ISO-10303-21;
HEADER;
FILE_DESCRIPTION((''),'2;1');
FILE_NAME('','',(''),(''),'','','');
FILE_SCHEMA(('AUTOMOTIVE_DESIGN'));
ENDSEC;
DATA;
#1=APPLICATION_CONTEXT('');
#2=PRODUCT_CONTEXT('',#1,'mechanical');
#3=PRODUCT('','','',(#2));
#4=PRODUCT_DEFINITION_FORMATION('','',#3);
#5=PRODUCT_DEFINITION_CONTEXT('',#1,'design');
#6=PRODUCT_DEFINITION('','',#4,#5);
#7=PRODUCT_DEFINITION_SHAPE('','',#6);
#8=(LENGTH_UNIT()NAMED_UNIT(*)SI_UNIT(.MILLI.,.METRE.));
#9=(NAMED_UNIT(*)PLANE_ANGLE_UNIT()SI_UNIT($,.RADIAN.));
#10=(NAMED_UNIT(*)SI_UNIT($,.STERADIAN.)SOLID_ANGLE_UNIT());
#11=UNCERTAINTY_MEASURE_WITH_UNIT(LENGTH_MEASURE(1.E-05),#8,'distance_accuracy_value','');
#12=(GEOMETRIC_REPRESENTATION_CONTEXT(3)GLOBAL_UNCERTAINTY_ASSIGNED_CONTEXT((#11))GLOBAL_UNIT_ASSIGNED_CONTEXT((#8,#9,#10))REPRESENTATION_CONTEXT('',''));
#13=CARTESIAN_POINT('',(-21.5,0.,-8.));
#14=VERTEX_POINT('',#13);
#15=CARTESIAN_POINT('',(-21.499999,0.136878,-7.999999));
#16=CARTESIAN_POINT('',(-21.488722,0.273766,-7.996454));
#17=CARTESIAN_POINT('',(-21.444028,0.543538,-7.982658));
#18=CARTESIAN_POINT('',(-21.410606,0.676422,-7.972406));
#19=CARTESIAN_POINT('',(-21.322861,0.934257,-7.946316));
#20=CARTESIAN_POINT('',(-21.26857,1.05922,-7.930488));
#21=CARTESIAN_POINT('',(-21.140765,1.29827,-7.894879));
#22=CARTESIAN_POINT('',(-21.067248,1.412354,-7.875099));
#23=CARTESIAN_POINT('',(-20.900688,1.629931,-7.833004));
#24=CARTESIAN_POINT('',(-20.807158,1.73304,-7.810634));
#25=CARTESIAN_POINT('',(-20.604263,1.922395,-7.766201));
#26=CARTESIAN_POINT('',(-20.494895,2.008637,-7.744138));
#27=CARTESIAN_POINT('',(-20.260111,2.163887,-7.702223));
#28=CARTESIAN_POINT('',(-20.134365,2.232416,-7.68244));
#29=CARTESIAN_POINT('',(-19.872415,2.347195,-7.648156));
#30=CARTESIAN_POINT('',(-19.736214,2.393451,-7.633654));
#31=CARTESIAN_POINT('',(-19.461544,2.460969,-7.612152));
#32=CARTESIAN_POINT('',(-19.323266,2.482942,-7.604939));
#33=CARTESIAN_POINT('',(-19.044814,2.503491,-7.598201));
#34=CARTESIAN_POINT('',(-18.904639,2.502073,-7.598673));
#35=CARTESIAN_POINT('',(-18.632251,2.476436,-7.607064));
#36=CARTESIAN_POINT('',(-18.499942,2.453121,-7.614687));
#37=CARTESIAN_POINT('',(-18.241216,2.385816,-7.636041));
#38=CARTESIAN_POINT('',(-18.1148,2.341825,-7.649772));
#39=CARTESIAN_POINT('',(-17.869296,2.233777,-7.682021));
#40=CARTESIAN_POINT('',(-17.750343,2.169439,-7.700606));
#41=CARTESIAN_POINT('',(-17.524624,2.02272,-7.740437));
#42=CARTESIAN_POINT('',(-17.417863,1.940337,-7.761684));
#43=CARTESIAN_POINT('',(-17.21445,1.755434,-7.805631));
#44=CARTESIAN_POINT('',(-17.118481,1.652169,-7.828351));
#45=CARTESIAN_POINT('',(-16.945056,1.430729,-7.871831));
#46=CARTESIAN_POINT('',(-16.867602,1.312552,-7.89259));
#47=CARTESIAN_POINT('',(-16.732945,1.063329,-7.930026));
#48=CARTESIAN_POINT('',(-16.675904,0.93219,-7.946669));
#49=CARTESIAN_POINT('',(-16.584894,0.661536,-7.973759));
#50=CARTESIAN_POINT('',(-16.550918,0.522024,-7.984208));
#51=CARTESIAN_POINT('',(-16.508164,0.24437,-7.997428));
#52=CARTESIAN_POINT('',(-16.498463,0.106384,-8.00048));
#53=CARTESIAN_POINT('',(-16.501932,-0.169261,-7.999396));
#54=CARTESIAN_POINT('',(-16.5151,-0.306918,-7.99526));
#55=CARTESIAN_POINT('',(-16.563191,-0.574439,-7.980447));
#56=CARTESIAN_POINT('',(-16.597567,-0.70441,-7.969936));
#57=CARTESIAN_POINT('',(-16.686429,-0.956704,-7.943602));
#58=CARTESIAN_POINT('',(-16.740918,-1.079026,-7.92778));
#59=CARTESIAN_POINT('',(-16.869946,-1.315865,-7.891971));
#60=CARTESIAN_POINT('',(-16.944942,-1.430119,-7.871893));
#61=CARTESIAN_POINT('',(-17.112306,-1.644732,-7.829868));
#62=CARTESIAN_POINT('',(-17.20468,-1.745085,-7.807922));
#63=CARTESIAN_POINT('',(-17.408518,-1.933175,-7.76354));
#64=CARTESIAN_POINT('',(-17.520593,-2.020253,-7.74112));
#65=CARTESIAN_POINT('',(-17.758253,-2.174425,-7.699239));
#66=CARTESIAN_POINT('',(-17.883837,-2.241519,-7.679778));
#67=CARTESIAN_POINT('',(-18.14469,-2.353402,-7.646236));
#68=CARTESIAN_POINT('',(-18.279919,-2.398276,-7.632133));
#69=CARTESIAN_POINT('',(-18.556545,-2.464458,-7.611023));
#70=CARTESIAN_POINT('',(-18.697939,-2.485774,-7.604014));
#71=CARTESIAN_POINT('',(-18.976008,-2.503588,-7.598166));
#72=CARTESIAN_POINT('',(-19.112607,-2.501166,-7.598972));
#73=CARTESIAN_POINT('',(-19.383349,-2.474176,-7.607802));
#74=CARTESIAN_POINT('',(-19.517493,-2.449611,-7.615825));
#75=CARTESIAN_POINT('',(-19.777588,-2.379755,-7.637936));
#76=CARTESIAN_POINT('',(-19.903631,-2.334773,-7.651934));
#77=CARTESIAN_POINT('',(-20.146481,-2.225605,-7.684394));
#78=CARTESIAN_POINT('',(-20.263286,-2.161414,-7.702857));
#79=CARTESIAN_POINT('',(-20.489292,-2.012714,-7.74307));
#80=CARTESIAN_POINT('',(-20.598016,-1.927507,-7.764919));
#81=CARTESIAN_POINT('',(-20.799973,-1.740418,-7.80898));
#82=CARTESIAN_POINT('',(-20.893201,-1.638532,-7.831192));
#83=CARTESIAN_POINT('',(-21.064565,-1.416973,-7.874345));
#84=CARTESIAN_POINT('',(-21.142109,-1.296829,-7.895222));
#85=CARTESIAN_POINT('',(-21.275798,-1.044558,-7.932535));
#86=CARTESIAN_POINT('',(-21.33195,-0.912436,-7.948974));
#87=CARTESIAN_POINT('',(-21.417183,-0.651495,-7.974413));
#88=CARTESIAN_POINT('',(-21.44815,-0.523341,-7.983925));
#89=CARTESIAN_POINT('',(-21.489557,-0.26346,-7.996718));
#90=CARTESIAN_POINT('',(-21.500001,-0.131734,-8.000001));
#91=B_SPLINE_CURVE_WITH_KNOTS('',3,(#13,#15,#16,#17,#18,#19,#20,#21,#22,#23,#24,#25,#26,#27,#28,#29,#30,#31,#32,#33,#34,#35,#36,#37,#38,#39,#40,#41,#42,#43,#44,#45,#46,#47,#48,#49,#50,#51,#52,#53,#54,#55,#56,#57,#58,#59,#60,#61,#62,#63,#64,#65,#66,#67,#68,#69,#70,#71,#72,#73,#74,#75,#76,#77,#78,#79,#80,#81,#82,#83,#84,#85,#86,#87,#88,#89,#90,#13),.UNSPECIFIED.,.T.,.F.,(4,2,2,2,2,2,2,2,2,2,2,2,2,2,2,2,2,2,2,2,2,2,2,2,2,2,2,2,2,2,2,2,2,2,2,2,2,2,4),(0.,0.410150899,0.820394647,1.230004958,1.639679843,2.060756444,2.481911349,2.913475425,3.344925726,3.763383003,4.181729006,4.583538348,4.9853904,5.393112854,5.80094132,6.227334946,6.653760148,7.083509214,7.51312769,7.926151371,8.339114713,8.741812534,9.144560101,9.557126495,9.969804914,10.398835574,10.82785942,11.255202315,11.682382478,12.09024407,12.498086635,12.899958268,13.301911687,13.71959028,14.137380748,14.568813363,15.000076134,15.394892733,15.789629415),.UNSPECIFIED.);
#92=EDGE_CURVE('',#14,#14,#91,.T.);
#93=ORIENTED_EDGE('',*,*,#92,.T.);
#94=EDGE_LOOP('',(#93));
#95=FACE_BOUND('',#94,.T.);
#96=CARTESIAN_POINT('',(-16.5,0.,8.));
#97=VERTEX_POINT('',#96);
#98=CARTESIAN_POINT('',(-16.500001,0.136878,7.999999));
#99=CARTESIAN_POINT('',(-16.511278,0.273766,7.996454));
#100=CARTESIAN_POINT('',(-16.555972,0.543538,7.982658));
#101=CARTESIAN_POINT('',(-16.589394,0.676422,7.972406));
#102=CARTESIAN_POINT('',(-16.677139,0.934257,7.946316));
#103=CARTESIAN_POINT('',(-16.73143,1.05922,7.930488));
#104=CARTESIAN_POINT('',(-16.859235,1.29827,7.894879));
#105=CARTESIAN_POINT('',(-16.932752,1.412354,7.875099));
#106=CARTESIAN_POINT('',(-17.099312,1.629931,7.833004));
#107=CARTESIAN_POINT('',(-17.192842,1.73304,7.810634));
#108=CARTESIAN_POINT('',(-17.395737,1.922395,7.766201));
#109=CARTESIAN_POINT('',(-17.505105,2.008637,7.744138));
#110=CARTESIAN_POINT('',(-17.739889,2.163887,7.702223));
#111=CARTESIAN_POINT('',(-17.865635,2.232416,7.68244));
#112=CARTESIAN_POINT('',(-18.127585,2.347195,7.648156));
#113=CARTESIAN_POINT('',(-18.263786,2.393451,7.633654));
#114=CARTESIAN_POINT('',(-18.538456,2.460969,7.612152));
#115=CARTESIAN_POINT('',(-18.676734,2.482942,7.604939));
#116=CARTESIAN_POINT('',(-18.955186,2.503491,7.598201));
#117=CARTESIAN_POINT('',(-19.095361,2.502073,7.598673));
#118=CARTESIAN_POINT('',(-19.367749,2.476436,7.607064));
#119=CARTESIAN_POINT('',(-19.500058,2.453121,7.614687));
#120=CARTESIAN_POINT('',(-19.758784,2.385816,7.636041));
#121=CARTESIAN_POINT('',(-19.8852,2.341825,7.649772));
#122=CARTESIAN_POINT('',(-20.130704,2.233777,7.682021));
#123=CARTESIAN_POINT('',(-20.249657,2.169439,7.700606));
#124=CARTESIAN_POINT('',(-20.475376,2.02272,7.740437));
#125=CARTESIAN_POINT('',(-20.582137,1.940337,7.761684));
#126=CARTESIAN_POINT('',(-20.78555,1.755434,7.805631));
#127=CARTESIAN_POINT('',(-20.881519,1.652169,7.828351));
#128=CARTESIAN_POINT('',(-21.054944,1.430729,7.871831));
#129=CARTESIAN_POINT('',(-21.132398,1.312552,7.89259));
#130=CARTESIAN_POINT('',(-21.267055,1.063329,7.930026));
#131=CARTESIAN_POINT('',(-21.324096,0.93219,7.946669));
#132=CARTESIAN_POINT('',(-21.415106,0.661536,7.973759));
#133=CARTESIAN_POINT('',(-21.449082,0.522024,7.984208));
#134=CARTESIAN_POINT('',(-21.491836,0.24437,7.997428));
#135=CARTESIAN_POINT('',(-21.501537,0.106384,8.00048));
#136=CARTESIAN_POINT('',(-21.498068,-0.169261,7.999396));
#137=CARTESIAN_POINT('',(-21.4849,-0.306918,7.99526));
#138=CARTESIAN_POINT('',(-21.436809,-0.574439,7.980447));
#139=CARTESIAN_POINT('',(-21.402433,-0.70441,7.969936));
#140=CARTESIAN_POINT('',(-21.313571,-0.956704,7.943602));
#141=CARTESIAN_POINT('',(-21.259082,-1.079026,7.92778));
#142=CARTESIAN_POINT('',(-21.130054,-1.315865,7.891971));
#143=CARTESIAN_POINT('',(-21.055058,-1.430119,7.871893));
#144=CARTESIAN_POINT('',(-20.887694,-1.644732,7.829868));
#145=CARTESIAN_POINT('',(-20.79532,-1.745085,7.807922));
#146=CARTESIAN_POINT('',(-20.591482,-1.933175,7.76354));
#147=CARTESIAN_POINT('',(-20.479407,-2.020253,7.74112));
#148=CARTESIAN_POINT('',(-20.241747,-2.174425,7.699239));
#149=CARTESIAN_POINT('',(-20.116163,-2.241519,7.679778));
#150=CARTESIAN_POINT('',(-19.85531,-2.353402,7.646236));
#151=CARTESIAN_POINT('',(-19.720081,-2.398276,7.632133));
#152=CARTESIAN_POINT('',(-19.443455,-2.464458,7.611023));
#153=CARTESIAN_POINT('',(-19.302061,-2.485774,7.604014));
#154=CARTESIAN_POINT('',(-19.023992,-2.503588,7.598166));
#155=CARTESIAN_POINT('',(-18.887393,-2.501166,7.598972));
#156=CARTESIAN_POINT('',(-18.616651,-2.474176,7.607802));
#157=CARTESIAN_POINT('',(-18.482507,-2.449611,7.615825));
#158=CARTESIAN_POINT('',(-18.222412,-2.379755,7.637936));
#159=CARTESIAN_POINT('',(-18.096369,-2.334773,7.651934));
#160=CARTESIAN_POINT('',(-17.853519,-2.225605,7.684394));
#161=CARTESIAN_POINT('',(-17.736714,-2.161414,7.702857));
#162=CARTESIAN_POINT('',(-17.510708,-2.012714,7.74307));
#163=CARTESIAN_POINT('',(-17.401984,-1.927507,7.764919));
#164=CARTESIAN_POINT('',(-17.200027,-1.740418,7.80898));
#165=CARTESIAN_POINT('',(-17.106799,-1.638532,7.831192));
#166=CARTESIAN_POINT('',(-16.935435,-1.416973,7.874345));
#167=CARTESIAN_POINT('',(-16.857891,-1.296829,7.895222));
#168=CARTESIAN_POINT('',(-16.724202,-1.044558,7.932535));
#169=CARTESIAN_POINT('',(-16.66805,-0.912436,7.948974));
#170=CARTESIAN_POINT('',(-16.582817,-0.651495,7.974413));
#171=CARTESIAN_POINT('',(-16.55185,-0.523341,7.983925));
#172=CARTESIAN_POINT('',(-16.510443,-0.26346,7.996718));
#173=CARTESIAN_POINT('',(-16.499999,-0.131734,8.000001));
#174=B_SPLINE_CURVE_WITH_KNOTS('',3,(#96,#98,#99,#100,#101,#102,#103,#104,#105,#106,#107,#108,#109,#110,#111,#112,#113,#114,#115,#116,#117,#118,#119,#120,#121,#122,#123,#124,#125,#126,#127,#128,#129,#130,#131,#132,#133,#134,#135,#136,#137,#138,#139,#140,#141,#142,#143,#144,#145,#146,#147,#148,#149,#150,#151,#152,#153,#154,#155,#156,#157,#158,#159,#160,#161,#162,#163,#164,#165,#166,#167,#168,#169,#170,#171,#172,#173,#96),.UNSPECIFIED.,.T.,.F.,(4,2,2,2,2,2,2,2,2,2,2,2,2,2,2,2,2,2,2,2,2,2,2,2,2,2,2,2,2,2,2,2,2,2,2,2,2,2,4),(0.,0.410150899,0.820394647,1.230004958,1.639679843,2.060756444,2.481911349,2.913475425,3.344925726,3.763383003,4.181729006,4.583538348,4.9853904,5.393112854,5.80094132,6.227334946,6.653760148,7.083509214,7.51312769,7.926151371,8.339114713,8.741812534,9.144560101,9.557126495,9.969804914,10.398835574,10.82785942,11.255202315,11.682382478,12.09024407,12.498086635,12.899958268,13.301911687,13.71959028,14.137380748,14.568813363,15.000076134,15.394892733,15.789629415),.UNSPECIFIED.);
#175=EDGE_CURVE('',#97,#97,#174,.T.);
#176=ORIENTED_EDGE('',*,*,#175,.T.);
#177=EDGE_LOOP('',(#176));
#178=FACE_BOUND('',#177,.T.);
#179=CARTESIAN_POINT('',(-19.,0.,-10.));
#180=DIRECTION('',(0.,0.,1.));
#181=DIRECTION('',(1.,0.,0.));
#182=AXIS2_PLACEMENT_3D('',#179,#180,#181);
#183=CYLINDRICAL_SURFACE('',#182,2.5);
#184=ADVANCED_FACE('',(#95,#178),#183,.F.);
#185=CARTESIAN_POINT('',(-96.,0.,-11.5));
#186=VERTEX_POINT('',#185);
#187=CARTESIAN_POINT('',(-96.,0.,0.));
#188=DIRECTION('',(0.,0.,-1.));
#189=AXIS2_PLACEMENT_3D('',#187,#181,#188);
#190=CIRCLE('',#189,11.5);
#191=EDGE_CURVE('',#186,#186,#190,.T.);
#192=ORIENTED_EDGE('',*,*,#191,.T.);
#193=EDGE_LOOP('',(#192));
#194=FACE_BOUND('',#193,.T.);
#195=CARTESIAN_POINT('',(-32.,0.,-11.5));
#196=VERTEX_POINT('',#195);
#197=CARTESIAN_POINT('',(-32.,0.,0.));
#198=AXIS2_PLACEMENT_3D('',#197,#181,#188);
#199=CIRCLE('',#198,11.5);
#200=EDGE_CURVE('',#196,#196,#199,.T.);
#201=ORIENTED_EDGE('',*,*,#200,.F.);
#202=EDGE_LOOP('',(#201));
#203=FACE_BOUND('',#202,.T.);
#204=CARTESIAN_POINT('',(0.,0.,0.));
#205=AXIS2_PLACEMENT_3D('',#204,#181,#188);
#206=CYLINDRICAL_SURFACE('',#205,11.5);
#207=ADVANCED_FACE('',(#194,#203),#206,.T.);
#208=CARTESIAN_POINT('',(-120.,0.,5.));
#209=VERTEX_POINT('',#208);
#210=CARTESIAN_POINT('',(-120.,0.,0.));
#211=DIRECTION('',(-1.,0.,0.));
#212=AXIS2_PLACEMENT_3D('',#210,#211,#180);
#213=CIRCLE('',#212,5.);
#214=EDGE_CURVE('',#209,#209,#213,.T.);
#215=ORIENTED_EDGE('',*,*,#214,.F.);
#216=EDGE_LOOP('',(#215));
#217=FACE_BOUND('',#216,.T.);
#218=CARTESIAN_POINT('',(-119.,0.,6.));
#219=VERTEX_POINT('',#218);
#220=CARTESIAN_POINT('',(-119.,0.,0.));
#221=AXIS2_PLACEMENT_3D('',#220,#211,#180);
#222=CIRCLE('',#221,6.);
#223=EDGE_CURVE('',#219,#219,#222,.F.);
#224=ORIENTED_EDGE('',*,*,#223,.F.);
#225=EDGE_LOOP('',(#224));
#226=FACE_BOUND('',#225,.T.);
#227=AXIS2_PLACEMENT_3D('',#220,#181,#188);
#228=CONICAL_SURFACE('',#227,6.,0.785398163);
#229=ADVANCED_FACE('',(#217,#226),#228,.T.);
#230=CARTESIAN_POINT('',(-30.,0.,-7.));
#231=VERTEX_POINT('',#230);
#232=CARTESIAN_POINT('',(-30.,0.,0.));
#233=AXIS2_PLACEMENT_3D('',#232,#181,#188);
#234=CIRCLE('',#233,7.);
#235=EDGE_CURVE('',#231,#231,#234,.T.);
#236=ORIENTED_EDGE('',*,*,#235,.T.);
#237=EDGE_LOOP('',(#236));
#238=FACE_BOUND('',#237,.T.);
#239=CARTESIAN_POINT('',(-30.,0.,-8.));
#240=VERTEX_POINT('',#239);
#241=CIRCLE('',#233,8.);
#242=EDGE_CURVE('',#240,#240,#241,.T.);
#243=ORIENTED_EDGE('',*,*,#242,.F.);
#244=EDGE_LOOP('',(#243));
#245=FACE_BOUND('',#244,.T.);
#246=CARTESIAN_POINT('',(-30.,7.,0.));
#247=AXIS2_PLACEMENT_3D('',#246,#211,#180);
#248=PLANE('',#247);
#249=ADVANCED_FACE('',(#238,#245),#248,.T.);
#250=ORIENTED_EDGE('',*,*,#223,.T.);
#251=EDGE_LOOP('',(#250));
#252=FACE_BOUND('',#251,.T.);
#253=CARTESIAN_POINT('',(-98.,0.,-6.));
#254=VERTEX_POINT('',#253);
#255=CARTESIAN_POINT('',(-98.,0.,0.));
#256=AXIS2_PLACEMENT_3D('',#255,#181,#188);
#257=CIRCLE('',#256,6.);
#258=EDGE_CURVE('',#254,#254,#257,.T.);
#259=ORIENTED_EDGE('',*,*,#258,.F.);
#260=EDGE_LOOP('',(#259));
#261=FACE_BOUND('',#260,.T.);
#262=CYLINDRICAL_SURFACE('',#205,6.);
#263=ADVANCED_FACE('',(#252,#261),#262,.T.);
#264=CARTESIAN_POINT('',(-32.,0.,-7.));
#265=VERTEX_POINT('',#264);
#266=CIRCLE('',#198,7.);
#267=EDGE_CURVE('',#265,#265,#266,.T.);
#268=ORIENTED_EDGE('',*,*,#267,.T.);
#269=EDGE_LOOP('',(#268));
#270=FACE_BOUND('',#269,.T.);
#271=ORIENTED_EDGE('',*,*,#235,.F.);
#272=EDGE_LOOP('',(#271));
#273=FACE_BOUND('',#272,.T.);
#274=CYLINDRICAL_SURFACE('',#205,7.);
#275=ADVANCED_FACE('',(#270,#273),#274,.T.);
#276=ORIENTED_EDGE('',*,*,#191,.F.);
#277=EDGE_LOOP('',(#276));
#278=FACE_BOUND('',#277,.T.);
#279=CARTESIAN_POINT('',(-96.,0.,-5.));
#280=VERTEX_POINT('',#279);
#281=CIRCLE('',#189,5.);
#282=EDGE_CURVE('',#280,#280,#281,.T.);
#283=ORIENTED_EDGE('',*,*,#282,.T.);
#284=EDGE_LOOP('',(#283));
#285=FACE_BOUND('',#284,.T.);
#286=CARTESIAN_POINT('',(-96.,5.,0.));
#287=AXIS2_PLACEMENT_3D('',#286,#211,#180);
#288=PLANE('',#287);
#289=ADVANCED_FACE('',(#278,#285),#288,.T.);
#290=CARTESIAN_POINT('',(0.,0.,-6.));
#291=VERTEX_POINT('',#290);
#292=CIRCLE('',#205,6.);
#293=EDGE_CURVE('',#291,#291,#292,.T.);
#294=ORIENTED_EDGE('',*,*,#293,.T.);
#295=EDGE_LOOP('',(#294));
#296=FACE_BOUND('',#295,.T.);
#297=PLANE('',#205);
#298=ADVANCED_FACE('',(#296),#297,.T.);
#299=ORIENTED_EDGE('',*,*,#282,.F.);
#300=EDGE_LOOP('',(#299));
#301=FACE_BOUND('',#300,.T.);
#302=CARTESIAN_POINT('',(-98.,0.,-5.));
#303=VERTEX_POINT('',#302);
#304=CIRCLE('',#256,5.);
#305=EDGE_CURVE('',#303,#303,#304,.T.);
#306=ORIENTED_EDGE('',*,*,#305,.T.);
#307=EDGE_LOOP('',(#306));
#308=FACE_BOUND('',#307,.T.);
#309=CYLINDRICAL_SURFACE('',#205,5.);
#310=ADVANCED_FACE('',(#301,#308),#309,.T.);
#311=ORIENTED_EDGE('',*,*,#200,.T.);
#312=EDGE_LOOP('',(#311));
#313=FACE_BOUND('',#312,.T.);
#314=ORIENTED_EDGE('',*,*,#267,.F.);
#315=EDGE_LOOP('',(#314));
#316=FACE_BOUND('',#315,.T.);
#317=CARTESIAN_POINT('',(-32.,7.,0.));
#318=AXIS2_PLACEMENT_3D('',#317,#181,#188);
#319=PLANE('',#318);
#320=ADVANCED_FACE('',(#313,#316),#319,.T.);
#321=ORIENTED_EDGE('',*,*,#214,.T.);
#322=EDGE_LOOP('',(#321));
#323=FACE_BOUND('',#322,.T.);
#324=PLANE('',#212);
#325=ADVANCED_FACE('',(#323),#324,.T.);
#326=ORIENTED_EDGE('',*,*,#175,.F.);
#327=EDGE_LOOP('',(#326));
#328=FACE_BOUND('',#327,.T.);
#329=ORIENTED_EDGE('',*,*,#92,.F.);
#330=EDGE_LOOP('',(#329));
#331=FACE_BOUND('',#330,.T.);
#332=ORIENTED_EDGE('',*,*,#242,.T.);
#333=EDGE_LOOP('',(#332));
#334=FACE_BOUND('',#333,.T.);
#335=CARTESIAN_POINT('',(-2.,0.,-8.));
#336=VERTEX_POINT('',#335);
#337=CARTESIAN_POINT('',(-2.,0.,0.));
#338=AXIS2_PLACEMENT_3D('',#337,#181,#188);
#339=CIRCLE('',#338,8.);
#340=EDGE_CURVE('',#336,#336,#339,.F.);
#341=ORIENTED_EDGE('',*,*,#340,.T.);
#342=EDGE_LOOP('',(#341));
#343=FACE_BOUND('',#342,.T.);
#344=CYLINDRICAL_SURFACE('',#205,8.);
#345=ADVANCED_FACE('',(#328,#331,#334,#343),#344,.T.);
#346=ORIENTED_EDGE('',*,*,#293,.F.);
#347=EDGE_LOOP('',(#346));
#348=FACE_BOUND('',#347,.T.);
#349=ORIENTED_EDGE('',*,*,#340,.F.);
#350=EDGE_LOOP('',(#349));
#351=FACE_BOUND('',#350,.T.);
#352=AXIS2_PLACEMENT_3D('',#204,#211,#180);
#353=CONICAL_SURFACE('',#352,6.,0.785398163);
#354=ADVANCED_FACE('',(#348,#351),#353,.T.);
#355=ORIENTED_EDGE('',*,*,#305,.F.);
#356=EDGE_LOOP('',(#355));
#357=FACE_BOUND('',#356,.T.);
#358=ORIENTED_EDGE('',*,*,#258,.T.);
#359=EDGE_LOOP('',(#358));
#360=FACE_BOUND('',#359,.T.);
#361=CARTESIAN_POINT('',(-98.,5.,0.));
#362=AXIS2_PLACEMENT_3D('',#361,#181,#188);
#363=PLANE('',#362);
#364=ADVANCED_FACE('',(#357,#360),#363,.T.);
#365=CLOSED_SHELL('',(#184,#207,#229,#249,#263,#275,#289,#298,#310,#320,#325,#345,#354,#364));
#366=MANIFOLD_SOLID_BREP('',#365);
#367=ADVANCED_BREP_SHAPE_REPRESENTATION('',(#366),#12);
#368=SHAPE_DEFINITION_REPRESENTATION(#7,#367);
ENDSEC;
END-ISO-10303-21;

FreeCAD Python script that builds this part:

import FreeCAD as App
import Part
import Sketcher
Q = App.Units.Quantity


def edges_at(feature, points):
    """Names of the edges that pass closest to the given points."""
    edges = feature.Shape.Edges
    near = lambda p: min(range(len(edges)), key=lambda i: edges[i].distToShape(Part.Vertex(*p))[0])
    return sorted({f"Edge{near(p) + 1}" for p in points})


def add_polygon(sketch, points):
    """Adds a closed chain of lines whose ends are joined by coincident constraints."""
    first, n = sketch.GeometryCount, len(points)
    for a, b in zip(points, points[1:] + points[:1]):
        sketch.addGeometry(Part.LineSegment(App.Vector(*a, 0), App.Vector(*b, 0)), False)
    for i in range(n):
        sketch.addConstraint(Sketcher.Constraint("Coincident", first + i, 2, first + (i + 1) % n, 1))

doc = App.newDocument("Part")
params = doc.addObject("Spreadsheet::Sheet", "Params")
for row, (alias, value) in enumerate([
    ("sketch1_width", "120 mm"),
    ("sketch1_width2", "30 mm"),
    ("sketch1_width3", "2 mm"),
    ("sketch1_width4", "64 mm"),
    ("sketch1_height", "8 mm"),
    ("revolution_angle", "360 deg"),
    ("sketch2_diameter", "5 mm"),
    ("pocket1_length", "20 mm"),
    ("chamfer_size", "2 mm"),
    ("chamfer2_size", "1 mm"),
], start=1):
    params.set(f"A{row}", alias)
    params.set(f"B{row}", "=" + value)
    params.setAlias(f"B{row}", alias)

body = doc.addObject("PartDesign::Body", "Body")

sketch1 = body.newObject("Sketcher::SketchObject", "Sketch")
sketch1.AttachmentSupport = (doc.getObject("XY_Plane"), [""])
sketch1.MapMode = "FlatFace"
add_polygon(sketch1, [(-120, 0), (0, 0), (0, 8), (-30, 8), (-30, 7), (-32, 7), (-32, 11.5), (-96, 11.5), (-96, 5), (-98, 5), (-98, 6), (-120, 6)])
sketch1.addConstraint(Sketcher.Constraint("Horizontal", 0))
sketch1.addConstraint(Sketcher.Constraint("Vertical", 1))
sketch1.addConstraint(Sketcher.Constraint("Horizontal", 2))
sketch1.addConstraint(Sketcher.Constraint("Vertical", 3))
sketch1.addConstraint(Sketcher.Constraint("Horizontal", 4))
sketch1.addConstraint(Sketcher.Constraint("Vertical", 5))
sketch1.addConstraint(Sketcher.Constraint("Horizontal", 6))
sketch1.addConstraint(Sketcher.Constraint("Vertical", 7))
sketch1.addConstraint(Sketcher.Constraint("Horizontal", 8))
sketch1.addConstraint(Sketcher.Constraint("Vertical", 9))
sketch1.addConstraint(Sketcher.Constraint("Horizontal", 10))
sketch1.addConstraint(Sketcher.Constraint("Vertical", 11))
sketch1.addConstraint(Sketcher.Constraint("Coincident", 0, 2, -1, 1))
sketch1.addConstraint(Sketcher.Constraint("Equal", 4, 8))
sketch1.addConstraint(Sketcher.Constraint("Equal", 3, 9))
sketch1.addConstraint(Sketcher.Constraint("DistanceX", 0, 1, 0, 2, Q("120 mm")))
sketch1.addConstraint(Sketcher.Constraint("DistanceX", 2, 2, 2, 1, Q("30 mm")))
sketch1.addConstraint(Sketcher.Constraint("DistanceX", 4, 2, 4, 1, Q("2 mm")))
sketch1.addConstraint(Sketcher.Constraint("DistanceX", 6, 2, 6, 1, Q("64 mm")))
sketch1.addConstraint(Sketcher.Constraint("DistanceY", 1, 1, 1, 2, Q("8 mm")))
sketch1.addConstraint(Sketcher.Constraint("DistanceY", 3, 2, 3, 1, Q("1 mm")))
sketch1.addConstraint(Sketcher.Constraint("DistanceY", 11, 2, 11, 1, Q("6 mm")))
sketch1.addConstraint(Sketcher.Constraint("DistanceY", 5, 1, 5, 2, Q("4.5 mm")))
sketch1.setExpression("Constraints[27]", "Params.sketch1_width")
sketch1.setExpression("Constraints[28]", "Params.sketch1_width2")
sketch1.setExpression("Constraints[29]", "Params.sketch1_width3")
sketch1.setExpression("Constraints[30]", "Params.sketch1_width4")
sketch1.setExpression("Constraints[31]", "Params.sketch1_height")
revolution = body.newObject("PartDesign::Revolution", "Revolution")
revolution.Profile = sketch1
revolution.ReferenceAxis = (sketch1, ["H_Axis"])
revolution.setExpression("Angle", "Params.revolution_angle")

sketch2 = body.newObject("Sketcher::SketchObject", "Sketch001")
sketch2.AttachmentSupport = (doc.getObject("XY_Plane"), [""])
sketch2.MapMode = "FlatFace"
sketch2.addGeometry(Part.Circle(App.Vector(-19, 0, 0), App.Vector(0, 0, 1), 2.5), False)
sketch2.addConstraint(Sketcher.Constraint("PointOnObject", 0, 3, -1))
sketch2.addConstraint(Sketcher.Constraint("Diameter", 0, Q("5 mm")))
sketch2.addConstraint(Sketcher.Constraint("DistanceX", 0, 3, -1, 1, Q("19 mm")))
sketch2.setExpression("Constraints[1]", "Params.sketch2_diameter")
pocket1 = body.newObject("PartDesign::Pocket", "Pocket")
pocket1.Profile = sketch2
pocket1.setExpression("Length", "Params.pocket1_length")
pocket1.Midplane = True
doc.recompute()

chamfer = body.newObject("PartDesign::Chamfer", "Chamfer")
chamfer.Base = (pocket1, edges_at(pocket1, [(0, 0, 8)]))
chamfer.setExpression("Size", "Params.chamfer_size")
doc.recompute()

chamfer2 = body.newObject("PartDesign::Chamfer", "Chamfer001")
chamfer2.Base = (chamfer, edges_at(chamfer, [(-120, 0, 6)]))
chamfer2.setExpression("Size", "Params.chamfer2_size")

doc.recompute()
